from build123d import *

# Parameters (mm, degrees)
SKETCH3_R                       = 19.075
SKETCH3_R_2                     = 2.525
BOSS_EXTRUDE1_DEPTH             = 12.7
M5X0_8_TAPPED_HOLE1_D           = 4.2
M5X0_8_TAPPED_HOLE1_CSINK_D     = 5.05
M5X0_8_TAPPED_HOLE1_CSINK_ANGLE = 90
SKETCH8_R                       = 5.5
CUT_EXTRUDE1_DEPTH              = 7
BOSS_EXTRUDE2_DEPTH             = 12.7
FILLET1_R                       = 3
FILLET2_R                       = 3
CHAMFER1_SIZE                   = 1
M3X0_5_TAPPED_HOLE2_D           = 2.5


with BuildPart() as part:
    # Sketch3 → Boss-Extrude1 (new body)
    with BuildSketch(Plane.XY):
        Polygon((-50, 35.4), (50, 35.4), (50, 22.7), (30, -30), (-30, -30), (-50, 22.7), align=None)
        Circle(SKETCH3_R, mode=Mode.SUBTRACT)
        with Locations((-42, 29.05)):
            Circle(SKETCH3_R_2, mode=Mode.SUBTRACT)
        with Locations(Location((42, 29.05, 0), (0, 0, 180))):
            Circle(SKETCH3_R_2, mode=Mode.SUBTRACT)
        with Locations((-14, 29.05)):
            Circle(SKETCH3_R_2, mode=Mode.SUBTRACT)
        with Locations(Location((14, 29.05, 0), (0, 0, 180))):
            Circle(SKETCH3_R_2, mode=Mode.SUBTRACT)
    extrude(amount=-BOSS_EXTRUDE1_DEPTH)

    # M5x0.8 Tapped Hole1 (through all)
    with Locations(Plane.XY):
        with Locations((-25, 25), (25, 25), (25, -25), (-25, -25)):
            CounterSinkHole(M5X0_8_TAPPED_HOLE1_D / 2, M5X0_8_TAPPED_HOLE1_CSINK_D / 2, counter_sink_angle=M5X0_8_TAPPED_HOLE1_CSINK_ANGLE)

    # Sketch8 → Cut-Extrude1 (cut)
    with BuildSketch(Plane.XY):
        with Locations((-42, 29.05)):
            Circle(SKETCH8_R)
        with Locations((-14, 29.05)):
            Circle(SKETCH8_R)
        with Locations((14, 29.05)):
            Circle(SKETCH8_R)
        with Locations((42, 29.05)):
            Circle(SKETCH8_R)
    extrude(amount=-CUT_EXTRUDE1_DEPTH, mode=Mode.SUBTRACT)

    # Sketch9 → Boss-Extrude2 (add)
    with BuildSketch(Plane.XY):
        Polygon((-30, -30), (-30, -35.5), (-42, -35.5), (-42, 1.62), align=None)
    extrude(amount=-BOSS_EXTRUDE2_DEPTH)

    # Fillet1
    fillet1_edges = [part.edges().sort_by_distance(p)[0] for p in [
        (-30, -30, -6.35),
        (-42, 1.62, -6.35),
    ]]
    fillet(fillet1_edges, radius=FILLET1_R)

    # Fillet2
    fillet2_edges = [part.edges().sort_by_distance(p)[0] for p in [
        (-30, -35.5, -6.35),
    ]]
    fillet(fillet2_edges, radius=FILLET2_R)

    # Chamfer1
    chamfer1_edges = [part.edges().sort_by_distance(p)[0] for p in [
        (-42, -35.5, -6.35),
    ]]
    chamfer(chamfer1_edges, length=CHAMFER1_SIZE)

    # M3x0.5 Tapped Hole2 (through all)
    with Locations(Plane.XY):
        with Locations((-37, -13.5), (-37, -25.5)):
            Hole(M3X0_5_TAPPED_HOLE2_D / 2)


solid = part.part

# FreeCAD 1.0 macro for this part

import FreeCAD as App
import Part
import Sketcher

V = App.Vector
Q = App.Units.Quantity


def edges_at(feature, points):
    """Names of the edges that pass closest to the given points."""
    edges = feature.Shape.Edges
    near = lambda p: min(range(len(edges)), key=lambda i: edges[i].distToShape(Part.Vertex(*p))[0])
    return sorted({f"Edge{near(p) + 1}" for p in points})

doc = App.newDocument("Part")
body = doc.addObject("PartDesign::Body", "Body")

sketch1 = body.newObject("Sketcher::SketchObject", "Sketch")
sketch1.AttachmentSupport = (doc.getObject("XY_Plane"), [""])
sketch1.MapMode = "FlatFace"
sketch1.addGeometry([
    Part.LineSegment(V(50, 35.4, 0), V(-50, 35.4, 0)),
    Part.LineSegment(V(-50, 35.4, 0), V(-50, 22.7, 0)),
    Part.LineSegment(V(-50, 22.7, 0), V(-30, -30, 0)),
    Part.LineSegment(V(-30, -30, 0), V(30, -30, 0)),
    Part.LineSegment(V(30, -30, 0), V(50, 22.7, 0)),
    Part.LineSegment(V(50, 22.7, 0), V(50, 35.4, 0)),
    Part.Circle(V(0, 0, 0), V(0, 0, 1), 19.1),
    Part.Circle(V(42, 29.1, 0), V(0, 0, 1), 2.5),
    Part.Circle(V(14, 29.1, 0), V(0, 0, 1), 2.5),
    Part.Circle(V(-14, 29.1, 0), V(0, 0, 1), 2.5),
    Part.Circle(V(-42, 29.1, 0), V(0, 0, 1), 2.5),
], False)
sketch1.addConstraint([
    Sketcher.Constraint("Coincident", 0, 2, 1, 1),
    Sketcher.Constraint("Coincident", 1, 2, 2, 1),
    Sketcher.Constraint("Coincident", 2, 2, 3, 1),
    Sketcher.Constraint("Coincident", 3, 2, 4, 1),
    Sketcher.Constraint("Coincident", 4, 2, 5, 1),
    Sketcher.Constraint("Coincident", 5, 2, 0, 1),
    Sketcher.Constraint("Horizontal", 0),
    Sketcher.Constraint("Vertical", 1),
    Sketcher.Constraint("Horizontal", 3),
    Sketcher.Constraint("Vertical", 5),
    Sketcher.Constraint("Coincident", 6, 3, -1, 1),
    Sketcher.Constraint("Equal", 7, 8),
    Sketcher.Constraint("Equal", 8, 9),
    Sketcher.Constraint("Equal", 9, 10),
    Sketcher.Constraint("Symmetric", 8, 3, 9, 3, -2),
    Sketcher.Constraint("Symmetric", 7, 3, 10, 3, -2),
    Sketcher.Constraint("Symmetric", 1, 2, 4, 2, -2),
    Sketcher.Constraint("Horizontal", 7, 3, 8, 3),
    Sketcher.Constraint("Equal", 2, 4),
    Sketcher.Constraint("Diameter", 6, Q("38.15 mm")),
    Sketcher.Constraint("Diameter", 7, Q("5.05 mm")),
    Sketcher.Constraint("DistanceX", 0, 2, 0, 1, Q("100 mm")),
    Sketcher.Constraint("DistanceX", 3, 1, 3, 2, Q("60 mm")),
    Sketcher.Constraint("DistanceY", 1, 2, 1, 1, Q("12.7 mm")),
    Sketcher.Constraint("DistanceX", -1, 1, 7, 3, Q("42 mm")),
    Sketcher.Constraint("DistanceX", -1, 1, 8, 3, Q("14 mm")),
    Sketcher.Constraint("DistanceY", 2, 2, -1, 1, Q("30 mm")),
    Sketcher.Constraint("DistanceY", -1, 1, 0, 2, Q("35.4 mm")),
    Sketcher.Constraint("DistanceY", -1, 1, 7, 3, Q("29.05 mm")),
])
pad1 = body.newObject("PartDesign::Pad", "Pad")
pad1.Profile = sketch1
pad1.Length = 12.7
pad1.Reversed = True

sketch2 = body.newObject("Sketcher::SketchObject", "Sketch001")
sketch2.AttachmentSupport = (doc.getObject("XY_Plane"), [""])
sketch2.MapMode = "FlatFace"
sketch2.addGeometry([
    Part.Circle(V(-25, 25, 0), V(0, 0, 1), 2.1),
    Part.Circle(V(25, 25, 0), V(0, 0, 1), 2.1),
    Part.Circle(V(25, -25, 0), V(0, 0, 1), 2.1),
    Part.Circle(V(-25, -25, 0), V(0, 0, 1), 2.1),
], False)
sketch2.addConstraint([
    Sketcher.Constraint("Equal", 0, 1),
    Sketcher.Constraint("Equal", 1, 2),
    Sketcher.Constraint("Equal", 2, 3),
    Sketcher.Constraint("Symmetric", 0, 3, 2, 3, -1, 1),
    Sketcher.Constraint("Symmetric", 1, 3, 3, 3, -1, 1),
    Sketcher.Constraint("Symmetric", 0, 3, 1, 3, -2),
    Sketcher.Constraint("Diameter", 0, Q("4.2 mm")),
    Sketcher.Constraint("DistanceX", 0, 3, -1, 1, Q("25 mm")),
    Sketcher.Constraint("DistanceY", -1, 1, 0, 3, Q("25 mm")),
])
doc.recompute()
hole = body.newObject("PartDesign::Hole", "Hole")
hole.Profile = sketch2
hole.ThreadType = "None"
hole.Diameter = 4.2
hole.DepthType = "ThroughAll"
hole.HoleCutType = "Countersink"
hole.HoleCutDiameter = 5.05
hole.HoleCutCountersinkAngle = 90

sketch3 = body.newObject("Sketcher::SketchObject", "Sketch002")
sketch3.AttachmentSupport = (doc.getObject("XY_Plane"), [""])
sketch3.MapMode = "FlatFace"
sketch3.addGeometry([
    Part.Circle(V(-42, 29, 0), V(0, 0, 1), 6),
    Part.Circle(V(-14, 29, 0), V(0, 0, 1), 6),
    Part.Circle(V(14, 29, 0), V(0, 0, 1), 6),
    Part.Circle(V(42, 29, 0), V(0, 0, 1), 6),
], False)
sketch3.addConstraint([
    Sketcher.Constraint("Equal", 0, 1),
    Sketcher.Constraint("Equal", 1, 2),
    Sketcher.Constraint("Equal", 2, 3),
    Sketcher.Constraint("Symmetric", 1, 3, 2, 3, -2),
    Sketcher.Constraint("Symmetric", 0, 3, 3, 3, -2),
    Sketcher.Constraint("Horizontal", 0, 3, 1, 3),
    Sketcher.Constraint("Diameter", 0, Q("11 mm")),
    Sketcher.Constraint("DistanceX", 0, 3, -1, 1, Q("42 mm")),
    Sketcher.Constraint("DistanceX", 1, 3, -1, 1, Q("14 mm")),
    Sketcher.Constraint("DistanceY", -1, 1, 0, 3, Q("29.05 mm")),
])
pocket1 = body.newObject("PartDesign::Pocket", "Pocket")
pocket1.Profile = sketch3
pocket1.Length = 7

sketch4 = body.newObject("Sketcher::SketchObject", "Sketch003")
sketch4.AttachmentSupport = (doc.getObject("XY_Plane"), [""])
sketch4.MapMode = "FlatFace"
sketch4.addGeometry([
    Part.LineSegment(V(-30, -36, 0), V(-30, -30, 0)),
    Part.LineSegment(V(-30, -30, 0), V(-42, 2, 0)),
    Part.LineSegment(V(-42, 2, 0), V(-42, -36, 0)),
    Part.LineSegment(V(-42, -36, 0), V(-30, -36, 0)),
], False)
sketch4.addConstraint([
    Sketcher.Constraint("Coincident", 0, 2, 1, 1),
    Sketcher.Constraint("Coincident", 1, 2, 2, 1),
    Sketcher.Constraint("Coincident", 2, 2, 3, 1),
    Sketcher.Constraint("Coincident", 3, 2, 0, 1),
    Sketcher.Constraint("Vertical", 0),
    Sketcher.Constraint("Vertical", 2),
    Sketcher.Constraint("Horizontal", 3),
    Sketcher.Constraint("DistanceX", 3, 1, 3, 2, Q("12 mm")),
    Sketcher.Constraint("DistanceY", 0, 1, 0, 2, Q("5.5 mm")),
    Sketcher.Constraint("DistanceX", 0, 2, -1, 1, Q("30 mm")),
    Sketcher.Constraint("DistanceY", 0, 2, -1, 1, Q("30 mm")),
    Sketcher.Constraint("DistanceY", 2, 2, 2, 1, Q("37.12 mm")),
])
pad2 = body.newObject("PartDesign::Pad", "Pad001")
pad2.Profile = sketch4
pad2.Length = 12.7
pad2.Reversed = True
doc.recompute()

fillet = body.newObject("PartDesign::Fillet", "Fillet")
fillet.Base = (pad2, edges_at(pad2, [(-30, -30, -6.35), (-42, 1.62, -6.35)]))
fillet.Radius = 3
doc.recompute()

fillet2 = body.newObject("PartDesign::Fillet", "Fillet001")
fillet2.Base = (fillet, edges_at(fillet, [(-30, -35.5, -6.35)]))
fillet2.Radius = 3
doc.recompute()

chamfer = body.newObject("PartDesign::Chamfer", "Chamfer")
chamfer.Base = (fillet2, edges_at(fillet2, [(-42, -35.5, -6.35)]))
chamfer.Size = 1

sketch5 = body.newObject("Sketcher::SketchObject", "Sketch004")
sketch5.AttachmentSupport = (doc.getObject("XY_Plane"), [""])
sketch5.MapMode = "FlatFace"
sketch5.addGeometry([
    Part.Circle(V(-37, -13.5, 0), V(0, 0, 1), 1.2),
    Part.Circle(V(-37, -25.5, 0), V(0, 0, 1), 1.2),
], False)
sketch5.addConstraint([
    Sketcher.Constraint("Equal", 0, 1),
    Sketcher.Constraint("Vertical", 0, 3, 1, 3),
    Sketcher.Constraint("Diameter", 0, Q("2.5 mm")),
    Sketcher.Constraint("DistanceX", 0, 3, -1, 1, Q("37 mm")),
    Sketcher.Constraint("DistanceY", 1, 3, 0, 3, Q("12 mm")),
    Sketcher.Constraint("DistanceY", 0, 3, -1, 1, Q("13.5 mm")),
])
doc.recompute()
hole2 = body.newObject("PartDesign::Hole", "Hole001")
hole2.Profile = sketch5
hole2.ThreadType = "None"
hole2.Diameter = 2.5
hole2.DepthType = "ThroughAll"

doc.recompute()
